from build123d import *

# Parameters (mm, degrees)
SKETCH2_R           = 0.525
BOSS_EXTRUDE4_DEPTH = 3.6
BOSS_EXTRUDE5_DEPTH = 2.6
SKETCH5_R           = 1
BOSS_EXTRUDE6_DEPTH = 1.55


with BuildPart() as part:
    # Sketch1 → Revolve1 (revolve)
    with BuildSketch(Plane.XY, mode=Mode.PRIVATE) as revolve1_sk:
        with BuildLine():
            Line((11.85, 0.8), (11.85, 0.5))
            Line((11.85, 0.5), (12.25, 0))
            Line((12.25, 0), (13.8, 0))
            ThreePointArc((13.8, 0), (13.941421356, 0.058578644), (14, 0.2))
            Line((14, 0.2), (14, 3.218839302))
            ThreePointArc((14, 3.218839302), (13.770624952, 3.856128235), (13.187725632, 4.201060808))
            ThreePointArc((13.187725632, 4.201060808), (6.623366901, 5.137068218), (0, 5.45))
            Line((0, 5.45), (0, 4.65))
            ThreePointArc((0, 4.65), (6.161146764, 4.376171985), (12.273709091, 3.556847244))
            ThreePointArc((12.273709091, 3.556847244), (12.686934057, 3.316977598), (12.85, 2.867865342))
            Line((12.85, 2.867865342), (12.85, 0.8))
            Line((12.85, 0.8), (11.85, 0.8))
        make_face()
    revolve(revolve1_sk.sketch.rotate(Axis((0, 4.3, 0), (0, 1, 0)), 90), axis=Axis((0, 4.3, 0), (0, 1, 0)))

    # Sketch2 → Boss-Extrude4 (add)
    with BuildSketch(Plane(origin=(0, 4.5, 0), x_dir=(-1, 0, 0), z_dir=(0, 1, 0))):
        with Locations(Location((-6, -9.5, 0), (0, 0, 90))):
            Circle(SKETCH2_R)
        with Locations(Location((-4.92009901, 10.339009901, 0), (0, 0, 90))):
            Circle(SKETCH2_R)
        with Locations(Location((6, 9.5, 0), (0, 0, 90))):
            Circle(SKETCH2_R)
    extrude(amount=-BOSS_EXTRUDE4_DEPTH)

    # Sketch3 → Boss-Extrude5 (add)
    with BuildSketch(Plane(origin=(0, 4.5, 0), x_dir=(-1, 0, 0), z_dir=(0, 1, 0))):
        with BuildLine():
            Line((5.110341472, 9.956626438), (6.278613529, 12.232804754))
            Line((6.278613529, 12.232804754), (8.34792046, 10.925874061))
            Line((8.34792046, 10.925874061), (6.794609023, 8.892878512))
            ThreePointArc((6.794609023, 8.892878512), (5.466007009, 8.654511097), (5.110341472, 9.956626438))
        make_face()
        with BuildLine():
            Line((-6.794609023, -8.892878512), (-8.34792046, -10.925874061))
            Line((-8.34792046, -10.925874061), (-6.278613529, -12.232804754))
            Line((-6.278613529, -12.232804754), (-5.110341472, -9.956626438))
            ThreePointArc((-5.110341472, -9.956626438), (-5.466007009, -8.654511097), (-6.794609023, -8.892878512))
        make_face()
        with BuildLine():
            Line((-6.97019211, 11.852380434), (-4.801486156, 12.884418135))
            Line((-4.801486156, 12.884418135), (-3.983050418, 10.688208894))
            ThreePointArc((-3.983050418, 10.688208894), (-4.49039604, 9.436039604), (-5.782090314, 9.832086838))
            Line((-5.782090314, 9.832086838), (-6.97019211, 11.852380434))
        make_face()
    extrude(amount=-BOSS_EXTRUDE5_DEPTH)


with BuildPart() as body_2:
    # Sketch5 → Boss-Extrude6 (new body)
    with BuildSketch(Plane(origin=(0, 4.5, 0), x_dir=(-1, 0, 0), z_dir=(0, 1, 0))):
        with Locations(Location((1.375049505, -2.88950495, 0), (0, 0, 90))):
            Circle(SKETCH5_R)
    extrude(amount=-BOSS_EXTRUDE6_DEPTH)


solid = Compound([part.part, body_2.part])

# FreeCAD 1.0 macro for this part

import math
import FreeCAD as App
import Part
import Sketcher
from FreeCAD import Vector

doc = App.newDocument("Part")
body = doc.addObject("PartDesign::Body", "Body")

# Sketch on XY plane
sketch1 = body.newObject("Sketcher::SketchObject", "Sketch")
sketch1.AttachmentSupport = (doc.getObject("XY_Plane"), [""])
sketch1.MapMode = "FlatFace"
sketch1.addGeometry([
    Part.LineSegment(Vector(11.85, 0.8, 0), Vector(11.85, 0.5, 0)),  # 0
    Part.LineSegment(Vector(11.85, 0.5, 0), Vector(12.25, 0, 0)),  # 1
    Part.LineSegment(Vector(12.25, 0, 0), Vector(13.8, 0, 0)),  # 2
    Part.ArcOfCircle(Part.Circle(Vector(13.8, 0.2, 0), Vector(0, 0, 1), 0.2), math.radians(-90), math.radians(0)),  # 3
    Part.LineSegment(Vector(14, 0.2, 0), Vector(14, 3.22, 0)),  # 4
    Part.ArcOfCircle(Part.Circle(Vector(13, 3.22, 0), Vector(0, 0, 1), 1), math.radians(0), math.radians(79)),  # 5
    Part.ArcOfCircle(Part.Circle(Vector(0, -64.8, 0), Vector(0, 0, 1), 70.25), math.radians(79.18), math.radians(90)),  # 6
    Part.LineSegment(Vector(0, 5.45, 0), Vector(0, 4.65, 0)),  # 7
    Part.ArcOfCircle(Part.Circle(Vector(0, -64.8, 0), Vector(0, 0, 1), 69.45), math.radians(79.82), math.radians(90)),  # 8
    Part.ArcOfCircle(Part.Circle(Vector(12.15, 2.87, 0), Vector(0, 0, 1), 0.7), math.radians(0), math.radians(80)),  # 9
    Part.LineSegment(Vector(12.85, 2.87, 0), Vector(12.85, 0.8, 0)),  # 10
    Part.LineSegment(Vector(12.85, 0.8, 0), Vector(11.85, 0.8, 0)),  # 11
], False)
sketch1.addConstraint([
    Sketcher.Constraint("Coincident", 0, 2, 1, 1),
    Sketcher.Constraint("Coincident", 1, 2, 2, 1),
    Sketcher.Constraint("Tangent", 2, 2, 3, 1),
    Sketcher.Constraint("Tangent", 3, 2, 4, 1),
    Sketcher.Constraint("Tangent", 4, 2, 5, 1),
    Sketcher.Constraint("Tangent", 5, 2, 6, 1),
    Sketcher.Constraint("Coincident", 6, 2, 7, 1),
    Sketcher.Constraint("Coincident", 7, 2, 8, 2),
    Sketcher.Constraint("Tangent", 8, 1, 9, 2),
    Sketcher.Constraint("Tangent", 9, 1, 10, 1),
    Sketcher.Constraint("Coincident", 10, 2, 11, 1),
    Sketcher.Constraint("Coincident", 11, 2, 0, 1),
    Sketcher.Constraint("Vertical", 0),
    Sketcher.Constraint("Horizontal", 2),
    Sketcher.Constraint("Vertical", 4),
    Sketcher.Constraint("Vertical", 7),
    Sketcher.Constraint("Vertical", 10),
    Sketcher.Constraint("Horizontal", 11),
    Sketcher.Constraint("Coincident", 8, 3, 6, 3),
    Sketcher.Constraint("PointOnObject", 6, 3, -2),
    Sketcher.Constraint("PointOnObject", 1, 2, -1),
    Sketcher.Constraint("PointOnObject", 6, 2, -2),
    Sketcher.Constraint("Radius", 5, 1.0),
    Sketcher.Constraint("Radius", 3, 0.2),
    Sketcher.Constraint("Radius", 9, 0.7),
    Sketcher.Constraint("DistanceX", 11, 2, 11, 1, 1.0),
    Sketcher.Constraint("Radius", 6, 70.25),
    Sketcher.Constraint("Radius", 8, 69.45),
    Sketcher.Constraint("DistanceY", 0, 2, 0, 1, 0.3),
    Sketcher.Constraint("DistanceX", -1, 1, 5, 3, 13.0),
    Sketcher.Constraint("DistanceY", 6, 3, 3, 3, 65.0),
    Sketcher.Constraint("DistanceX", 2, 1, 2, 2, 1.55),
    Sketcher.Constraint("DistanceY", -1, 1, 0, 2, 0.5),
    Sketcher.Constraint("DistanceX", 0, 2, 1, 2, 0.4),
])
revolution = body.newObject("PartDesign::Revolution", "Revolution")
revolution.Profile = sketch1
revolution.ReferenceAxis = (sketch1, ["V_Axis"])
revolution.Angle = 360

# Sketch on XZ plane
sketch2 = body.newObject("Sketcher::SketchObject", "Sketch001")
sketch2.AttachmentSupport = (doc.getObject("XZ_Plane"), [""])
sketch2.MapMode = "FlatFace"
sketch2.AttachmentOffset = App.Placement(Vector(0, 0, -4.5), App.Rotation())
sketch2.addGeometry([
    Part.Circle(Vector(6, -9.5, 0), Vector(0, 0, 1), 0.5),
    Part.Circle(Vector(4.9, 10.3, 0), Vector(0, 0, 1), 0.5),
    Part.Circle(Vector(-6, 9.5, 0), Vector(0, 0, 1), 0.5),
], False)
sketch2.addConstraint([
    Sketcher.Constraint("Equal", 0, 1),
    Sketcher.Constraint("Equal", 1, 2),
    Sketcher.Constraint("Symmetric", 0, 3, 2, 3, -1, 1),
    Sketcher.Constraint("Diameter", 0, 1.05),
    Sketcher.Constraint("DistanceX", -1, 1, 0, 3, 6.0),
    Sketcher.Constraint("DistanceY", 0, 3, 2, 3, 19.0),
    Sketcher.Constraint("DistanceX", -1, 1, 1, 3, 4.920099),
    Sketcher.Constraint("DistanceY", -1, 1, 1, 3, 10.33901),
])
pad1 = body.newObject("PartDesign::Pad", "Pad")
pad1.Profile = sketch2
pad1.Length = 3.6

# Sketch on XZ plane
sketch3 = body.newObject("Sketcher::SketchObject", "Sketch002")
sketch3.AttachmentSupport = (doc.getObject("XZ_Plane"), [""])
sketch3.MapMode = "FlatFace"
sketch3.AttachmentOffset = App.Placement(Vector(0, 0, -4.5), App.Rotation())
sketch3.addGeometry([
    Part.LineSegment(Vector(-6.3, 12.2, 0), Vector(-5.1, 10, 0)),  # 0
    Part.ArcOfCircle(Part.Circle(Vector(-6, 9.5, 0), Vector(0, 0, 1), 1), math.radians(-143), math.radians(27)),  # 1
    Part.LineSegment(Vector(-6.8, 8.9, 0), Vector(-8.3, 10.9, 0)),  # 2
    Part.LineSegment(Vector(-8.3, 10.9, 0), Vector(-6.3, 12.2, 0)),  # 3
    Part.LineSegment(Vector(6.8, -8.9, 0), Vector(8.3, -10.9, 0)),  # 4
    Part.LineSegment(Vector(8.3, -10.9, 0), Vector(6.3, -12.2, 0)),  # 5
    Part.LineSegment(Vector(6.3, -12.2, 0), Vector(5.1, -10, 0)),  # 6
    Part.ArcOfCircle(Part.Circle(Vector(6, -9.5, 0), Vector(0, 0, 1), 1), math.radians(37), math.radians(207)),  # 7
    Part.LineSegment(Vector(4.8, 12.9, 0), Vector(7, 11.9, 0)),  # 8
    Part.LineSegment(Vector(7, 11.9, 0), Vector(5.8, 9.8, 0)),  # 9
    Part.ArcOfCircle(Part.Circle(Vector(4.9, 10.3, 0), Vector(0, 0, 1), 1), math.radians(160), math.radians(330)),  # 10
    Part.LineSegment(Vector(4, 10.7, 0), Vector(4.8, 12.9, 0)),  # 11
], False)
sketch3.addConstraint([
    Sketcher.Constraint("Tangent", 0, 2, 1, 2),
    Sketcher.Constraint("Tangent", 1, 1, 2, 1),
    Sketcher.Constraint("Coincident", 2, 2, 3, 1),
    Sketcher.Constraint("Coincident", 3, 2, 0, 1),
    Sketcher.Constraint("Coincident", 4, 2, 5, 1),
    Sketcher.Constraint("Coincident", 5, 2, 6, 1),
    Sketcher.Constraint("Tangent", 6, 2, 7, 2),
    Sketcher.Constraint("Tangent", 7, 1, 4, 1),
    Sketcher.Constraint("Coincident", 8, 2, 9, 1),
    Sketcher.Constraint("Tangent", 9, 2, 10, 2),
    Sketcher.Constraint("Tangent", 10, 1, 11, 1),
    Sketcher.Constraint("Coincident", 11, 2, 8, 1),
    Sketcher.Constraint("Equal", 1, 7),
    Sketcher.Constraint("Equal", 7, 10),
    Sketcher.Constraint("Symmetric", 1, 3, 7, 3, -1, 1),
    Sketcher.Constraint("Symmetric", 2, 2, 4, 2, -1, 1),
    Sketcher.Constraint("Symmetric", 3, 2, 5, 2, -1, 1),
    Sketcher.Constraint("Equal", 0, 2),
    Sketcher.Constraint("Equal", 9, 11),
    Sketcher.Constraint("Radius", 1, 1.0),
    Sketcher.Constraint("DistanceX", 1, 3, -1, 1, 6.0),
    Sketcher.Constraint("DistanceY", 7, 3, 1, 3, 19.0),
    Sketcher.Constraint("DistanceX", -1, 1, 10, 3, 4.920099),
    Sketcher.Constraint("DistanceY", 4, 2, 0, 2, 20.8825),
    Sketcher.Constraint("DistanceX", 1, 1, 8, 2, 13.764801),
    Sketcher.Constraint("DistanceY", 1, 1, 8, 2, 2.959502),
    Sketcher.Constraint("DistanceX", 9, 2, 8, 2, 1.188102),
    Sketcher.Constraint("DistanceY", 10, 3, 10, 1, 0.349199),
    Sketcher.Constraint("Distance", 9, 2.343752),
    Sketcher.Constraint("DistanceX", 0, 2, -1, 1, 5.110341),
])
pad2 = body.newObject("PartDesign::Pad", "Pad001")
pad2.Profile = sketch3
pad2.Length = 2.6
body2 = doc.addObject("PartDesign::Body", "Body001")

# Sketch on XZ plane
sketch4 = body2.newObject("Sketcher::SketchObject", "Sketch003")
sketch4.AttachmentSupport = (doc.getObject("XZ_Plane001"), [""])
sketch4.MapMode = "FlatFace"
sketch4.AttachmentOffset = App.Placement(Vector(0, 0, -4.5), App.Rotation())
sketch4.addGeometry(Part.Circle(Vector(-1.4, -2.9, 0), Vector(0, 0, 1), 1), False)
sketch4.addConstraint([
    Sketcher.Constraint("Diameter", 0, 2.0),
    Sketcher.Constraint("DistanceX", 0, 3, -1, 1, 1.37505),
    Sketcher.Constraint("DistanceY", 0, 3, -1, 1, 2.889505),
])
pad3 = body2.newObject("PartDesign::Pad", "Pad002")
pad3.Profile = sketch4
pad3.Length = 1.55

doc.recompute()
